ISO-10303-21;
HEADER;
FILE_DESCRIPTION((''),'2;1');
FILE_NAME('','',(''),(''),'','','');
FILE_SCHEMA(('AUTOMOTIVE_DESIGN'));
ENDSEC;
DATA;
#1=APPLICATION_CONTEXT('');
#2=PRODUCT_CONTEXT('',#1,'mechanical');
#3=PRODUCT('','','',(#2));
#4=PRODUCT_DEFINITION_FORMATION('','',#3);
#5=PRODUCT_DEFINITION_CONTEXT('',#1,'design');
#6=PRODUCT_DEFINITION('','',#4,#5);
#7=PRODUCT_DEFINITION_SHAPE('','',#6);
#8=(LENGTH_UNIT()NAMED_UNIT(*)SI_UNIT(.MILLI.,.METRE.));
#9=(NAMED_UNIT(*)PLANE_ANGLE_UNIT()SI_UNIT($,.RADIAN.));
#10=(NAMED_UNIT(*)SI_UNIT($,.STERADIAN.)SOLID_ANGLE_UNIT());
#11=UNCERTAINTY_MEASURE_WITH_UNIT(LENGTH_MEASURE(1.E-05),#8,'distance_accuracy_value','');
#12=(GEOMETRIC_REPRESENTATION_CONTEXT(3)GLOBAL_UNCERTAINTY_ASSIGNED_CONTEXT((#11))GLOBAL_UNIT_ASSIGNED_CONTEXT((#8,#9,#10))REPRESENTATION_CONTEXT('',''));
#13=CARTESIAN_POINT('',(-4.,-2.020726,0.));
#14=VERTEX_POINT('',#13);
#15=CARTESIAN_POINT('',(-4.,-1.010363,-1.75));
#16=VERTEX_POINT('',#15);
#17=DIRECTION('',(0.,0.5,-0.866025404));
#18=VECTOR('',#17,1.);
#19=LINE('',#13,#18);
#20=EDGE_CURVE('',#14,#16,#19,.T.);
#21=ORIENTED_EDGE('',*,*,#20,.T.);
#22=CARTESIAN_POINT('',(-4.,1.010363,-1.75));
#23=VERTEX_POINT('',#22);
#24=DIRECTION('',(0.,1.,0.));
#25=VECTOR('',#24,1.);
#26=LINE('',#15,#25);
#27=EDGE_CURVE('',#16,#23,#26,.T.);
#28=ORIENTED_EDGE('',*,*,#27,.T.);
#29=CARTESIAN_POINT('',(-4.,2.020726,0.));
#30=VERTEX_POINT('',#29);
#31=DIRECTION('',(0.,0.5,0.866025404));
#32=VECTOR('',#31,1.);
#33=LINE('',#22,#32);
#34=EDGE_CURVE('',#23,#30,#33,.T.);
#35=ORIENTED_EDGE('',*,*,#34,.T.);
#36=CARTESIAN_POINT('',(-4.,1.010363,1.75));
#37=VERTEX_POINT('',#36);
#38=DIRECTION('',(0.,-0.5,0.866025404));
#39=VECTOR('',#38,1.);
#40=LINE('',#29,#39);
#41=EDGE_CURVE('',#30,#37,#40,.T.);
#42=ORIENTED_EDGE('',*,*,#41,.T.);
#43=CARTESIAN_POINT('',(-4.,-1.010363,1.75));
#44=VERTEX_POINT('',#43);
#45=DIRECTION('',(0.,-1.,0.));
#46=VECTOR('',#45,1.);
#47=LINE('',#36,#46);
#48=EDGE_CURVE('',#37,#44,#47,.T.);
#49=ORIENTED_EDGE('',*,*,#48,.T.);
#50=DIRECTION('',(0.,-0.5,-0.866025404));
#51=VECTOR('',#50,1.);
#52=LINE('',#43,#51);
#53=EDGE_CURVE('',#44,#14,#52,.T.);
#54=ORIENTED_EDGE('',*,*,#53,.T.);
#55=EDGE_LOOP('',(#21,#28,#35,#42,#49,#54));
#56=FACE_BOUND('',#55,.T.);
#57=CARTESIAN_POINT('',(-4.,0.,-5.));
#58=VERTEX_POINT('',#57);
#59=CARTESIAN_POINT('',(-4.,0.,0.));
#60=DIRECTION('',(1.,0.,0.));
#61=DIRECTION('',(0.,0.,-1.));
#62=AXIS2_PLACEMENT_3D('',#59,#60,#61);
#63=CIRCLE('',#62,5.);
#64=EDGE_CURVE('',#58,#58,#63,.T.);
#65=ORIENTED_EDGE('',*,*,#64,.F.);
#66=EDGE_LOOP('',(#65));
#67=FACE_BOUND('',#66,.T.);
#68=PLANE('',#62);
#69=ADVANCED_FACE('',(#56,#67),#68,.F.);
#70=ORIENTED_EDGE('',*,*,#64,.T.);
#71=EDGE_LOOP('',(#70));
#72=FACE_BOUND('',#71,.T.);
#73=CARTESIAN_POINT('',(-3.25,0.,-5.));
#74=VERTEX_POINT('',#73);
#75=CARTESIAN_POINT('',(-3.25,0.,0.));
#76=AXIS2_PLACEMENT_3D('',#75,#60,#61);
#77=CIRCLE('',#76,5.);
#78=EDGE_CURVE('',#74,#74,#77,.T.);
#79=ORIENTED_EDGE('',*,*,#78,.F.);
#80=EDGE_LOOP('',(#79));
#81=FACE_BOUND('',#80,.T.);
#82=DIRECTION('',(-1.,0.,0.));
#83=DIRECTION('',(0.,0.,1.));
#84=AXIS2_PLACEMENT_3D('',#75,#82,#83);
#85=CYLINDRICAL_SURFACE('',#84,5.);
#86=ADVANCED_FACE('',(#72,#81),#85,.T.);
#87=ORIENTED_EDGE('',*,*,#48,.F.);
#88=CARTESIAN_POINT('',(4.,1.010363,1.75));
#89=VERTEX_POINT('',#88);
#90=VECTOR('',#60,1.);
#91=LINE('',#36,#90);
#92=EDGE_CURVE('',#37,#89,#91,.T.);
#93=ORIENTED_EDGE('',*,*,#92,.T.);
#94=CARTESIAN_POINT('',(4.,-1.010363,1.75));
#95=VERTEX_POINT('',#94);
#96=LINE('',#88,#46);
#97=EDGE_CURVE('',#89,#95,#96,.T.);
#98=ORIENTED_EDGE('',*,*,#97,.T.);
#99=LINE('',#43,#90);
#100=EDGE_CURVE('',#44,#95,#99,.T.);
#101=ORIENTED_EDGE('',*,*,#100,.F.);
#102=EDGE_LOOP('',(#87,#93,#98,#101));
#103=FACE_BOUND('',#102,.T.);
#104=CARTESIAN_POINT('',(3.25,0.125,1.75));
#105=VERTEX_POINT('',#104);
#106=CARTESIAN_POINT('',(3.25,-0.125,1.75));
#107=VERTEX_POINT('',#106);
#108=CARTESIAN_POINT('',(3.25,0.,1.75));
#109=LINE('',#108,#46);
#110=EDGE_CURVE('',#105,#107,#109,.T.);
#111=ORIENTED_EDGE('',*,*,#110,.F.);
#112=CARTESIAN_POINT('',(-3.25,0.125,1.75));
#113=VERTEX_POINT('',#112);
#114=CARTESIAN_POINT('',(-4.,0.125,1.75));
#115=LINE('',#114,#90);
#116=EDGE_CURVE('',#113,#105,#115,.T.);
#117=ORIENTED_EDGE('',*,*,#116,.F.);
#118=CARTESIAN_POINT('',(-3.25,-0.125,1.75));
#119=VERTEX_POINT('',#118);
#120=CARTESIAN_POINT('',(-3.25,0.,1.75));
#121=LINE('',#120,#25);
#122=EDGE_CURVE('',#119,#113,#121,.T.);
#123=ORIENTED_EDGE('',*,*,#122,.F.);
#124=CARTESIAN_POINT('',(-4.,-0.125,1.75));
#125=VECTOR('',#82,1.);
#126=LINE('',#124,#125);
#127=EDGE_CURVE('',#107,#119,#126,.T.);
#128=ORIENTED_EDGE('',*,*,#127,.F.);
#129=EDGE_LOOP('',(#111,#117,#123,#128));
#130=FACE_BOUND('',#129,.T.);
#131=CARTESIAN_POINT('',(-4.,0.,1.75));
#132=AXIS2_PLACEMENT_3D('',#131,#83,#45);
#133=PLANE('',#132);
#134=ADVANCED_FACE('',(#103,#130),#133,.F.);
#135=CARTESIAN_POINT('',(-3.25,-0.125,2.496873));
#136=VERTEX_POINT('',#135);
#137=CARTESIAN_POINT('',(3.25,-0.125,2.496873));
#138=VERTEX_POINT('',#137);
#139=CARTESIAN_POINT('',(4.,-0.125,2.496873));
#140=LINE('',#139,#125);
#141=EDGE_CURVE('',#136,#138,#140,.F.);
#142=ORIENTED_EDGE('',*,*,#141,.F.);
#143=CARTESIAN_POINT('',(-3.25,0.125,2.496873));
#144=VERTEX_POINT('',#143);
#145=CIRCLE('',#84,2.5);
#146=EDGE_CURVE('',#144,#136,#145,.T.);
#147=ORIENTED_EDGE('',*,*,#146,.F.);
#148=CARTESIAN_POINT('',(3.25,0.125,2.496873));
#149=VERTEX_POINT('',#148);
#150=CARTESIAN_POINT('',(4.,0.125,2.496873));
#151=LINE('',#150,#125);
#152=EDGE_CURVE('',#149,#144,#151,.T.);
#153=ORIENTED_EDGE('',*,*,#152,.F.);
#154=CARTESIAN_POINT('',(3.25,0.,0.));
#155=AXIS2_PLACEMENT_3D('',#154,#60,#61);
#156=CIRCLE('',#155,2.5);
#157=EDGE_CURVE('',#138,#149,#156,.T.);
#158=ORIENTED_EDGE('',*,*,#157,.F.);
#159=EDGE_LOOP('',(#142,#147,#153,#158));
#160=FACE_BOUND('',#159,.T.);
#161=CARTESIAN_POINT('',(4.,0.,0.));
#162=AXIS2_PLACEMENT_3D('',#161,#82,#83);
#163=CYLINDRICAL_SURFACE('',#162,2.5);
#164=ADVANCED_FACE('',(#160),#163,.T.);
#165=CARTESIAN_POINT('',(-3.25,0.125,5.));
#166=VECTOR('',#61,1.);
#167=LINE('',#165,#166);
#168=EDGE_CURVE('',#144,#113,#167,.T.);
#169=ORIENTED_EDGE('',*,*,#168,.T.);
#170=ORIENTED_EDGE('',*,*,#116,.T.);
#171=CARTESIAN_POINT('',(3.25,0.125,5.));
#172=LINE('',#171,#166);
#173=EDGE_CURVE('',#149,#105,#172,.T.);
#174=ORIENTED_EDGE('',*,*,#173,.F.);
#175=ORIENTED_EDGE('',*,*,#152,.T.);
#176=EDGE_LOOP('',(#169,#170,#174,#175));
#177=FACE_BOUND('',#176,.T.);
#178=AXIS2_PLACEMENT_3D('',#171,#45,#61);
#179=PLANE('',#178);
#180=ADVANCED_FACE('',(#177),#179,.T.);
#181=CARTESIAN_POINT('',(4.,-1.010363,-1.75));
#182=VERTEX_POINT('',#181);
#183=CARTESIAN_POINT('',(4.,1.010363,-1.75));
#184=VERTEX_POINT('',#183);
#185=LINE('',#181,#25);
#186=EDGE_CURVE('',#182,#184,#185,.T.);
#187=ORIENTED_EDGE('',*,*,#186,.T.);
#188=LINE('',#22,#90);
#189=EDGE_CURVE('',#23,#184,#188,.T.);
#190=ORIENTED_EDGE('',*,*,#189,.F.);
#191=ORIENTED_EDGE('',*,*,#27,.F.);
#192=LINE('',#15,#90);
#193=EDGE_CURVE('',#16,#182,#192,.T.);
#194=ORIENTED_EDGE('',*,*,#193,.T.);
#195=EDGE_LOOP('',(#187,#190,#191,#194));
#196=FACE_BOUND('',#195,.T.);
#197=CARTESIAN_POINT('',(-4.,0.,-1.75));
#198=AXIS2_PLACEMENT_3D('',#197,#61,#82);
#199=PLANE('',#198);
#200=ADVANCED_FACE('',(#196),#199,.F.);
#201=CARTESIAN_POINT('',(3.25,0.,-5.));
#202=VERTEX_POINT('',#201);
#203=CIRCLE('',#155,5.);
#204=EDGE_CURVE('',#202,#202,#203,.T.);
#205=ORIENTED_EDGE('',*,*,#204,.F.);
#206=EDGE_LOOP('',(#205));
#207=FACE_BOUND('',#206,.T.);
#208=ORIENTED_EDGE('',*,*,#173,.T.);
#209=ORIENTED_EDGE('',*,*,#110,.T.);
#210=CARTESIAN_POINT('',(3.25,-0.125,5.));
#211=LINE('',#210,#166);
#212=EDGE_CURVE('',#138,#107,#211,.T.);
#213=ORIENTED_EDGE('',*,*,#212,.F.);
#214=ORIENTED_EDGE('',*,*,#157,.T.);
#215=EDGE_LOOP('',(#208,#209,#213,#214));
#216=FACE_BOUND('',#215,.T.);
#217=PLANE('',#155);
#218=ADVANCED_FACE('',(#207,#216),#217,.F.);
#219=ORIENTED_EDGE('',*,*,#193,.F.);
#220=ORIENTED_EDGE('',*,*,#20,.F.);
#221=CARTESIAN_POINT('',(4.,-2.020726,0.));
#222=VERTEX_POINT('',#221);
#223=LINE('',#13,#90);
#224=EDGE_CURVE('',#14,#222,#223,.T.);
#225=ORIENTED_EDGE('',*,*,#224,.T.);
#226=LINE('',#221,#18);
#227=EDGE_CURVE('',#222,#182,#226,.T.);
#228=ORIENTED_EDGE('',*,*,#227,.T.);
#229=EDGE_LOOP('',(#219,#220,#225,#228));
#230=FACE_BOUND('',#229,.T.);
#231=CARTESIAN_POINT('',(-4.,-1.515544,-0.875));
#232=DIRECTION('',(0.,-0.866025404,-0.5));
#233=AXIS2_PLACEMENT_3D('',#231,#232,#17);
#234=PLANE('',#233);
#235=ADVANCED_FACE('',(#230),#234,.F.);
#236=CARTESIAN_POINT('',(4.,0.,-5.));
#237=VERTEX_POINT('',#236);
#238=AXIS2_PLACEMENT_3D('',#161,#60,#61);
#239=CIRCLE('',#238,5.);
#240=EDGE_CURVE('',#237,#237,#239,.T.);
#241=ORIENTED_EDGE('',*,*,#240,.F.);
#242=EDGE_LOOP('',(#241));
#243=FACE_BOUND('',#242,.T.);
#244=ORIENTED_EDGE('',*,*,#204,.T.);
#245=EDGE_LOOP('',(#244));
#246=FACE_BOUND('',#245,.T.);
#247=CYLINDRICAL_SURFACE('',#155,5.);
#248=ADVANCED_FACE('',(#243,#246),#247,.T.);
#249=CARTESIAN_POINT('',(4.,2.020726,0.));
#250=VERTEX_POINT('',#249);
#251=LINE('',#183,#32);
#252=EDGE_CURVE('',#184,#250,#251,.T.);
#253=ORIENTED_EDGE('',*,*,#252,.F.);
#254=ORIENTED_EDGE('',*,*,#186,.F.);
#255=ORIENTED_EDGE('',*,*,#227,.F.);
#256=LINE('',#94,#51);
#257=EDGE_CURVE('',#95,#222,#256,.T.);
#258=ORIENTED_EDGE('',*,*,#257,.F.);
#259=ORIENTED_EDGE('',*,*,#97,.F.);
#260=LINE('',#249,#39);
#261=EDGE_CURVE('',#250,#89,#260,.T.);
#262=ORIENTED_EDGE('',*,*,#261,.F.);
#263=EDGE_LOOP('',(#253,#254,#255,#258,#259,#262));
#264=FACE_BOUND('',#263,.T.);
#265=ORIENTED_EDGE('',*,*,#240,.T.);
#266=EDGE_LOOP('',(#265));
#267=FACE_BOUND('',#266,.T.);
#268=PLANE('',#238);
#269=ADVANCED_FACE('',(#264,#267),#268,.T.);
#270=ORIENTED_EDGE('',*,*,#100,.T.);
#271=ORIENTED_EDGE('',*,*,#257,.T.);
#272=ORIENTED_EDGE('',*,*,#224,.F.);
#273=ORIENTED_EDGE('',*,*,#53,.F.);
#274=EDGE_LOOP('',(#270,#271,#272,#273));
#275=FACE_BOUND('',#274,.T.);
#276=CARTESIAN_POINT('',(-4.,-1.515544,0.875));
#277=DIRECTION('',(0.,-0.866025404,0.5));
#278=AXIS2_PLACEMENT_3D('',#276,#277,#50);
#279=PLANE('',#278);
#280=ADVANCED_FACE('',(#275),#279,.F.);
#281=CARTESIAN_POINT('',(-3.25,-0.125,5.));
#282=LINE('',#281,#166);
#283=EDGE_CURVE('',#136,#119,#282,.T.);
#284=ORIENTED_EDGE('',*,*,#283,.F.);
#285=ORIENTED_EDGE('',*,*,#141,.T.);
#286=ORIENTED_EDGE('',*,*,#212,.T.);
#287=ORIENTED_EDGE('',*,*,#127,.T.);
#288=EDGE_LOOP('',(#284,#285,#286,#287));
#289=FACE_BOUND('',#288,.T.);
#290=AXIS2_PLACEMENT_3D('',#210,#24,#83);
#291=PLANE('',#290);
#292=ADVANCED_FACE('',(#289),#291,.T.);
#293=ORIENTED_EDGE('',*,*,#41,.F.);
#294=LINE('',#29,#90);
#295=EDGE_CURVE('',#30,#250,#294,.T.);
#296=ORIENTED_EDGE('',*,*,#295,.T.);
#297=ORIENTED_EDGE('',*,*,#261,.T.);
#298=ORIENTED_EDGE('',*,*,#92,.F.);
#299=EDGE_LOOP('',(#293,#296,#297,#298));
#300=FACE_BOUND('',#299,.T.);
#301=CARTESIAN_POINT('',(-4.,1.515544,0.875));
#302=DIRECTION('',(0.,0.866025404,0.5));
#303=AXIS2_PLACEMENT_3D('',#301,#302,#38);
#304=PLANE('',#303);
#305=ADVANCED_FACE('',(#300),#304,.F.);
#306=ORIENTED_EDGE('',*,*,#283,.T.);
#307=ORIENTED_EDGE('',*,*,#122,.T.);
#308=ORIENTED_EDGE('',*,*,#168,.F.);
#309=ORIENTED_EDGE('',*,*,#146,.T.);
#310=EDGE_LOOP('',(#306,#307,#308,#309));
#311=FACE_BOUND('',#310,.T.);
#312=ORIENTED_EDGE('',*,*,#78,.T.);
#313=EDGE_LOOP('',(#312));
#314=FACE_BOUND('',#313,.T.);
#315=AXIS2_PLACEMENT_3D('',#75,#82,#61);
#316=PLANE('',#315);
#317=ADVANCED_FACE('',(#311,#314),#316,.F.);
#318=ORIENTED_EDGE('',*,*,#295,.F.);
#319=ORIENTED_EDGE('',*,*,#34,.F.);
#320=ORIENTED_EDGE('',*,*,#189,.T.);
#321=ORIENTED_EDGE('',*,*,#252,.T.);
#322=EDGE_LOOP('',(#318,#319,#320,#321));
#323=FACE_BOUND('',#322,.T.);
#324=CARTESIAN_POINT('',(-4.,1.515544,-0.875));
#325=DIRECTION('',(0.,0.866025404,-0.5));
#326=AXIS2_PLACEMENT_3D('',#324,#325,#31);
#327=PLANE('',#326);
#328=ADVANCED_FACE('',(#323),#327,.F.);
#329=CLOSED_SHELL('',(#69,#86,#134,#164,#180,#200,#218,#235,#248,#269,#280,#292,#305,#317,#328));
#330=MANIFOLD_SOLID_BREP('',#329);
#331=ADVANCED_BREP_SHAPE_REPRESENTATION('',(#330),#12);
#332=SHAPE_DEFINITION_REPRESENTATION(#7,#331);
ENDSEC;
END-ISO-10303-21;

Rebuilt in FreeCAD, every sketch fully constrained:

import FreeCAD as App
import Part
import Sketcher

V = App.Vector
Q = App.Units.Quantity

doc = App.newDocument("Part")
params = doc.addObject("Spreadsheet::Sheet", "Params")
for row, (alias, value) in enumerate([
    ("sketch1_diameter", "5 mm"),
    ("pad1_length", "8 mm"),
    ("sketch2_diameter", "10 mm"),
    ("pad2_length", "0.75 mm"),
    ("sketch4_width", "6.5 mm"),
    ("sketch4_height", "0.25 mm"),
], start=1):
    params.set(f"A{row}", alias)
    params.set(f"B{row}", "=" + value)
    params.setAlias(f"B{row}", alias)

body = doc.addObject("PartDesign::Body", "Body")

# Sketch on YZ plane
sketch1 = body.newObject("Sketcher::SketchObject", "Sketch")
sketch1.AttachmentSupport = (doc.getObject("YZ_Plane"), [""])
sketch1.MapMode = "FlatFace"
sketch1.addGeometry(Part.Circle(V(0, 0, 0), V(0, 0, 1), 2.5), False)
sketch1.addConstraint(Sketcher.Constraint("Coincident", 0, 3, -1, 1))
sketch1.addConstraint(Sketcher.Constraint("Diameter", 0, Q("5 mm")))
sketch1.setExpression("Constraints[1]", "Params.sketch1_diameter")
pad1 = body.newObject("PartDesign::Pad", "Pad")
pad1.Profile = sketch1
pad1.setExpression("Length", "Params.pad1_length")
pad1.Midplane = True

# Sketch on YZ plane
sketch2 = body.newObject("Sketcher::SketchObject", "Sketch001")
sketch2.AttachmentSupport = (doc.getObject("YZ_Plane"), [""])
sketch2.MapMode = "FlatFace"
sketch2.AttachmentOffset = App.Placement(V(0, 0, 4), App.Rotation())
sketch2.addGeometry(Part.Circle(V(0, 0, 0), V(0, 0, 1), 5), False)
sketch2.addConstraint(Sketcher.Constraint("Coincident", 0, 3, -1, 1))
sketch2.addConstraint(Sketcher.Constraint("Diameter", 0, Q("10 mm")))
sketch2.setExpression("Constraints[1]", "Params.sketch2_diameter")
pad2 = body.newObject("PartDesign::Pad", "Pad001")
pad2.Profile = sketch2
pad2.setExpression("Length", "Params.pad2_length")
pad2.Reversed = True
doc.recompute()

mirrored = body.newObject("PartDesign::Mirrored", "Mirrored")
mirrored.Originals = [pad2]
mirrored.MirrorPlane = (doc.getObject("YZ_Plane"), [""])
body.Tip = mirrored

# Sketch on YZ plane
sketch3 = body.newObject("Sketcher::SketchObject", "Sketch002")
sketch3.AttachmentSupport = (doc.getObject("YZ_Plane"), [""])
sketch3.MapMode = "FlatFace"
sketch3.addGeometry(Part.LineSegment(V(1, -1.8, 0), V(1.5, -0.9, 0)), False)
sketch3.addGeometry(Part.LineSegment(V(1.5, -0.9, 0), V(2, 0, 0)), False)
sketch3.addGeometry(Part.LineSegment(V(2, 0, 0), V(1.5, 0.9, 0)), False)
sketch3.addGeometry(Part.LineSegment(V(1.5, 0.9, 0), V(1, 1.8, 0)), False)
sketch3.addGeometry(Part.LineSegment(V(1, 1.8, 0), V(-1, 1.8, 0)), False)
sketch3.addGeometry(Part.LineSegment(V(-1, 1.8, 0), V(-1.5, 0.9, 0)), False)
sketch3.addGeometry(Part.LineSegment(V(-1.5, 0.9, 0), V(-2, 0, 0)), False)
sketch3.addGeometry(Part.LineSegment(V(-2, 0, 0), V(-1.5, -0.9, 0)), False)
sketch3.addGeometry(Part.LineSegment(V(-1.5, -0.9, 0), V(-1, -1.8, 0)), False)
sketch3.addGeometry(Part.LineSegment(V(-1, -1.8, 0), V(1, -1.8, 0)), False)
sketch3.addConstraint(Sketcher.Constraint("Coincident", 0, 2, 1, 1))
sketch3.addConstraint(Sketcher.Constraint("Coincident", 1, 2, 2, 1))
sketch3.addConstraint(Sketcher.Constraint("Coincident", 2, 2, 3, 1))
sketch3.addConstraint(Sketcher.Constraint("Coincident", 3, 2, 4, 1))
sketch3.addConstraint(Sketcher.Constraint("Coincident", 4, 2, 5, 1))
sketch3.addConstraint(Sketcher.Constraint("Coincident", 5, 2, 6, 1))
sketch3.addConstraint(Sketcher.Constraint("Coincident", 6, 2, 7, 1))
sketch3.addConstraint(Sketcher.Constraint("Coincident", 7, 2, 8, 1))
sketch3.addConstraint(Sketcher.Constraint("Coincident", 8, 2, 9, 1))
sketch3.addConstraint(Sketcher.Constraint("Coincident", 9, 2, 0, 1))
sketch3.addConstraint(Sketcher.Constraint("Horizontal", 4))
sketch3.addConstraint(Sketcher.Constraint("Horizontal", 9))
sketch3.addConstraint(Sketcher.Constraint("Symmetric", 0, 2, 5, 2, -1, 1))
sketch3.addConstraint(Sketcher.Constraint("Symmetric", 1, 2, 6, 2, -1, 1))
sketch3.addConstraint(Sketcher.Constraint("Symmetric", 2, 2, 7, 2, -1, 1))
sketch3.addConstraint(Sketcher.Constraint("Symmetric", 3, 2, 8, 2, -1, 1))
sketch3.addConstraint(Sketcher.Constraint("Symmetric", 2, 2, 5, 2, -2))
sketch3.addConstraint(Sketcher.Constraint("PointOnObject", 1, 2, -1))
sketch3.addConstraint(Sketcher.Constraint("Parallel", 0, 1))
sketch3.addConstraint(Sketcher.Constraint("Parallel", 2, 3))
sketch3.addConstraint(Sketcher.Constraint("Parallel", 1, 5))
sketch3.addConstraint(Sketcher.Constraint("Equal", 0, 1))
sketch3.addConstraint(Sketcher.Constraint("Angle", 0, Q("60 deg")))
sketch3.addConstraint(Sketcher.Constraint("DistanceY", -1, 1, 3, 2, Q("1.75 mm")))
sketch3.addConstraint(Sketcher.Constraint("DistanceX", 4, 2, 4, 1, Q("2.020726 mm")))
pocket1 = body.newObject("PartDesign::Pocket", "Pocket")
pocket1.Profile = sketch3
pocket1.Type = "ThroughAll"
pocket1.Midplane = True

# Sketch on XY plane
sketch4 = body.newObject("Sketcher::SketchObject", "Sketch003")
sketch4.AttachmentSupport = (doc.getObject("XY_Plane"), [""])
sketch4.MapMode = "FlatFace"
sketch4.addGeometry(Part.LineSegment(V(-3.25, 0.12, 0), V(-3.25, -0.12, 0)), False)
sketch4.addGeometry(Part.LineSegment(V(-3.25, -0.12, 0), V(3.25, -0.12, 0)), False)
sketch4.addGeometry(Part.LineSegment(V(3.25, -0.12, 0), V(3.25, 0.12, 0)), False)
sketch4.addGeometry(Part.LineSegment(V(3.25, 0.12, 0), V(-3.25, 0.12, 0)), False)
sketch4.addConstraint(Sketcher.Constraint("Coincident", 0, 2, 1, 1))
sketch4.addConstraint(Sketcher.Constraint("Coincident", 1, 2, 2, 1))
sketch4.addConstraint(Sketcher.Constraint("Coincident", 2, 2, 3, 1))
sketch4.addConstraint(Sketcher.Constraint("Coincident", 3, 2, 0, 1))
sketch4.addConstraint(Sketcher.Constraint("Vertical", 0))
sketch4.addConstraint(Sketcher.Constraint("Horizontal", 1))
sketch4.addConstraint(Sketcher.Constraint("Vertical", 2))
sketch4.addConstraint(Sketcher.Constraint("Horizontal", 3))
sketch4.addConstraint(Sketcher.Constraint("Symmetric", 0, 2, 2, 2, -1, 1))
sketch4.addConstraint(Sketcher.Constraint("DistanceX", 1, 1, 1, 2, Q("6.5 mm")))
sketch4.addConstraint(Sketcher.Constraint("DistanceY", 0, 2, 0, 1, Q("0.25 mm")))
sketch4.setExpression("Constraints[9]", "Params.sketch4_width")
sketch4.setExpression("Constraints[10]", "Params.sketch4_height")
pocket2 = body.newObject("PartDesign::Pocket", "Pocket001")
pocket2.Profile = sketch4
pocket2.Type = "ThroughAll"
pocket2.Reversed = True

doc.recompute()
